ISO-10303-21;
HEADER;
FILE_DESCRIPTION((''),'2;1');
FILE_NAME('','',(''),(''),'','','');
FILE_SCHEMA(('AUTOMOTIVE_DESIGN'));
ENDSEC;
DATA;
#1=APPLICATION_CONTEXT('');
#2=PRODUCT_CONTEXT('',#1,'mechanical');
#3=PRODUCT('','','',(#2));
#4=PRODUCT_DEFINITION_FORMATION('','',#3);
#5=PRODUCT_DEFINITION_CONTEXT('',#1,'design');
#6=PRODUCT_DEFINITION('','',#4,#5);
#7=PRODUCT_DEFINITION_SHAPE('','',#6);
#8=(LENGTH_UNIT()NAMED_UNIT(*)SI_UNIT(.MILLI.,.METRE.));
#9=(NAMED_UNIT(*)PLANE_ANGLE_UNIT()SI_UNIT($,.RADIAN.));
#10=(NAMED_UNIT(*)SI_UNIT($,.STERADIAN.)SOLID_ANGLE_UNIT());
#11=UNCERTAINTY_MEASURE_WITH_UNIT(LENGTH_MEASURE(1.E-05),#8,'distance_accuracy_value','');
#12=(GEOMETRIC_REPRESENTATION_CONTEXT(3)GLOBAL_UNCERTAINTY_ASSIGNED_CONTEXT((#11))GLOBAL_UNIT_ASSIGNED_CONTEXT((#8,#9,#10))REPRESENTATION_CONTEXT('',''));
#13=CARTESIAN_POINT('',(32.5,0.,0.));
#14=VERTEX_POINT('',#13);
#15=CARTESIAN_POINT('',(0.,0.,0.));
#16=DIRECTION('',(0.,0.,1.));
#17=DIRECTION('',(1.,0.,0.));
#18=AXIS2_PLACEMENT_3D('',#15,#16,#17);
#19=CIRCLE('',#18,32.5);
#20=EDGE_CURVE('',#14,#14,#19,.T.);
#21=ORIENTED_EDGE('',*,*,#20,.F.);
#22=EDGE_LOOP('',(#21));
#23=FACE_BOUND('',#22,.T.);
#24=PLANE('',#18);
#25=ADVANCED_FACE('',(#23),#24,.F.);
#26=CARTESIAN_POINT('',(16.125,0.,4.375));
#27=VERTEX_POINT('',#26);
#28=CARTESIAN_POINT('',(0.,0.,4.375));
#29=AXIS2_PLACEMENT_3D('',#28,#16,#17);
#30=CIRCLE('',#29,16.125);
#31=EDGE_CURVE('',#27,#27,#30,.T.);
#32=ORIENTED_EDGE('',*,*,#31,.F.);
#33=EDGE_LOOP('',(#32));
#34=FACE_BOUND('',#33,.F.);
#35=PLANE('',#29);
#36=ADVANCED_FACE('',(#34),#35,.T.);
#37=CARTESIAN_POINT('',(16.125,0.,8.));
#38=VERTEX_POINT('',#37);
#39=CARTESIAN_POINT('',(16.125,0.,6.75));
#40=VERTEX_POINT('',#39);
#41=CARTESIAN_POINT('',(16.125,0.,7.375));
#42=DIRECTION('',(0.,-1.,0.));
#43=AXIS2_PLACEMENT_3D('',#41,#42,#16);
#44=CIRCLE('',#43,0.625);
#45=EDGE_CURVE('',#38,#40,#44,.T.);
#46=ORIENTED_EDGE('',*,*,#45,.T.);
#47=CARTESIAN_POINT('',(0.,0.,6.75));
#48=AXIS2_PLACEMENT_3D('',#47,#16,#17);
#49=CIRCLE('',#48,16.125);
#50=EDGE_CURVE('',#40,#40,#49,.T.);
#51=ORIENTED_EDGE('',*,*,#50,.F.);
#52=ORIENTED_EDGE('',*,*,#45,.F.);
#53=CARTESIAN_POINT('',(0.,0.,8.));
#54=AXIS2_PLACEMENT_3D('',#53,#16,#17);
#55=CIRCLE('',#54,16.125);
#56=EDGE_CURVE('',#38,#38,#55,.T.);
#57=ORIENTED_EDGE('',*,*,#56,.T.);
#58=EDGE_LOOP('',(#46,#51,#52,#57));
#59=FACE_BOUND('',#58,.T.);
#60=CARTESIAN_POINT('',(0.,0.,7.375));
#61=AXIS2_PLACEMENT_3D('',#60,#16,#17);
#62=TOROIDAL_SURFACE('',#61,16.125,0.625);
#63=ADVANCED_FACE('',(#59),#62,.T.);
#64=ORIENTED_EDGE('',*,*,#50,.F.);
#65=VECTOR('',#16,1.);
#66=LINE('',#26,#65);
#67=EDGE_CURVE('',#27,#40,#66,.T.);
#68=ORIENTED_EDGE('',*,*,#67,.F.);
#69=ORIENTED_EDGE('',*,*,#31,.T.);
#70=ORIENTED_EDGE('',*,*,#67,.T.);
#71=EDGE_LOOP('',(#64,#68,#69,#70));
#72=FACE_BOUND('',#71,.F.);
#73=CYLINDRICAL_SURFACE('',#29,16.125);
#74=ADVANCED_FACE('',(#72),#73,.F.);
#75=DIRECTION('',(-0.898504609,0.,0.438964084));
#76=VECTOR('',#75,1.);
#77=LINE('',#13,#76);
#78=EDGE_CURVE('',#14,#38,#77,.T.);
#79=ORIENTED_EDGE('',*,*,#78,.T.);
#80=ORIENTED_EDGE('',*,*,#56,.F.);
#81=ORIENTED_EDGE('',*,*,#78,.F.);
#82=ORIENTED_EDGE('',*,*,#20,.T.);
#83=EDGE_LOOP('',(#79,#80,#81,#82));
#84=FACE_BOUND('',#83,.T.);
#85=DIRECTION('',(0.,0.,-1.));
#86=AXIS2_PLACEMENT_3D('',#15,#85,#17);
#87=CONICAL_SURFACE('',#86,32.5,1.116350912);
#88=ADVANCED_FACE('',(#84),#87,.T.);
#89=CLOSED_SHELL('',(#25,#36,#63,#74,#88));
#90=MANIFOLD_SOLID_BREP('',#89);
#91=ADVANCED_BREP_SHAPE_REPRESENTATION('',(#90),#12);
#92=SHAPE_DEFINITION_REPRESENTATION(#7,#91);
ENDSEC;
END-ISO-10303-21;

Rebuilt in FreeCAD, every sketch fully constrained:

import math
import FreeCAD as App
import Part
import Sketcher
from FreeCAD import Vector
Q = App.Units.Quantity

doc = App.newDocument("Part")
body = doc.addObject("PartDesign::Body", "Body")

# Sketch on XZ plane
sketch1 = body.newObject("Sketcher::SketchObject", "Sketch")
sketch1.AttachmentSupport = (doc.getObject("XZ_Plane"), [""])
sketch1.MapMode = "FlatFace"
sketch1.addGeometry(Part.LineSegment(Vector(32.5, 0, 0), Vector(16.1, 8, 0)), False)
sketch1.addGeometry(Part.ArcOfCircle(Part.Circle(Vector(16.1, 7.4, 0), Vector(0, 0, 1), 0.6), math.radians(90), math.radians(270)), False)
sketch1.addGeometry(Part.LineSegment(Vector(16.1, 6.8, 0), Vector(16.1, 4.4, 0)), False)
sketch1.addGeometry(Part.LineSegment(Vector(16.1, 4.4, 0), Vector(0, 4.4, 0)), False)
sketch1.addGeometry(Part.LineSegment(Vector(0, 4.4, 0), Vector(0, 0, 0)), False)
sketch1.addGeometry(Part.LineSegment(Vector(0, 0, 0), Vector(32.5, 0, 0)), False)
sketch1.addConstraint(Sketcher.Constraint("Coincident", 0, 2, 1, 1))
sketch1.addConstraint(Sketcher.Constraint("Coincident", 1, 2, 2, 1))
sketch1.addConstraint(Sketcher.Constraint("Coincident", 2, 2, 3, 1))
sketch1.addConstraint(Sketcher.Constraint("Coincident", 3, 2, 4, 1))
sketch1.addConstraint(Sketcher.Constraint("Coincident", 4, 2, 5, 1))
sketch1.addConstraint(Sketcher.Constraint("Coincident", 5, 2, 0, 1))
sketch1.addConstraint(Sketcher.Constraint("Vertical", 2))
sketch1.addConstraint(Sketcher.Constraint("Horizontal", 3))
sketch1.addConstraint(Sketcher.Constraint("Vertical", 4))
sketch1.addConstraint(Sketcher.Constraint("Horizontal", 5))
sketch1.addConstraint(Sketcher.Constraint("Coincident", 4, 2, -1, 1))
sketch1.addConstraint(Sketcher.Constraint("Vertical", 1, 3, 0, 2))
sketch1.addConstraint(Sketcher.Constraint("Vertical", 0, 2, 1, 2))
sketch1.addConstraint(Sketcher.Constraint("DistanceX", 5, 1, 5, 2, Q("32.5 mm")))
sketch1.addConstraint(Sketcher.Constraint("DistanceY", -1, 1, 0, 2, Q("8 mm")))
sketch1.addConstraint(Sketcher.Constraint("Radius", 1, Q("0.625 mm")))
sketch1.addConstraint(Sketcher.Constraint("DistanceY", 2, 2, 1, 3, Q("3 mm")))
sketch1.addConstraint(Sketcher.Constraint("DistanceX", 3, 2, 3, 1, Q("16.125 mm")))
revolution = body.newObject("PartDesign::Revolution", "Revolution")
revolution.Profile = sketch1
revolution.ReferenceAxis = (sketch1, ["V_Axis"])
revolution.Angle = 360

doc.recompute()
